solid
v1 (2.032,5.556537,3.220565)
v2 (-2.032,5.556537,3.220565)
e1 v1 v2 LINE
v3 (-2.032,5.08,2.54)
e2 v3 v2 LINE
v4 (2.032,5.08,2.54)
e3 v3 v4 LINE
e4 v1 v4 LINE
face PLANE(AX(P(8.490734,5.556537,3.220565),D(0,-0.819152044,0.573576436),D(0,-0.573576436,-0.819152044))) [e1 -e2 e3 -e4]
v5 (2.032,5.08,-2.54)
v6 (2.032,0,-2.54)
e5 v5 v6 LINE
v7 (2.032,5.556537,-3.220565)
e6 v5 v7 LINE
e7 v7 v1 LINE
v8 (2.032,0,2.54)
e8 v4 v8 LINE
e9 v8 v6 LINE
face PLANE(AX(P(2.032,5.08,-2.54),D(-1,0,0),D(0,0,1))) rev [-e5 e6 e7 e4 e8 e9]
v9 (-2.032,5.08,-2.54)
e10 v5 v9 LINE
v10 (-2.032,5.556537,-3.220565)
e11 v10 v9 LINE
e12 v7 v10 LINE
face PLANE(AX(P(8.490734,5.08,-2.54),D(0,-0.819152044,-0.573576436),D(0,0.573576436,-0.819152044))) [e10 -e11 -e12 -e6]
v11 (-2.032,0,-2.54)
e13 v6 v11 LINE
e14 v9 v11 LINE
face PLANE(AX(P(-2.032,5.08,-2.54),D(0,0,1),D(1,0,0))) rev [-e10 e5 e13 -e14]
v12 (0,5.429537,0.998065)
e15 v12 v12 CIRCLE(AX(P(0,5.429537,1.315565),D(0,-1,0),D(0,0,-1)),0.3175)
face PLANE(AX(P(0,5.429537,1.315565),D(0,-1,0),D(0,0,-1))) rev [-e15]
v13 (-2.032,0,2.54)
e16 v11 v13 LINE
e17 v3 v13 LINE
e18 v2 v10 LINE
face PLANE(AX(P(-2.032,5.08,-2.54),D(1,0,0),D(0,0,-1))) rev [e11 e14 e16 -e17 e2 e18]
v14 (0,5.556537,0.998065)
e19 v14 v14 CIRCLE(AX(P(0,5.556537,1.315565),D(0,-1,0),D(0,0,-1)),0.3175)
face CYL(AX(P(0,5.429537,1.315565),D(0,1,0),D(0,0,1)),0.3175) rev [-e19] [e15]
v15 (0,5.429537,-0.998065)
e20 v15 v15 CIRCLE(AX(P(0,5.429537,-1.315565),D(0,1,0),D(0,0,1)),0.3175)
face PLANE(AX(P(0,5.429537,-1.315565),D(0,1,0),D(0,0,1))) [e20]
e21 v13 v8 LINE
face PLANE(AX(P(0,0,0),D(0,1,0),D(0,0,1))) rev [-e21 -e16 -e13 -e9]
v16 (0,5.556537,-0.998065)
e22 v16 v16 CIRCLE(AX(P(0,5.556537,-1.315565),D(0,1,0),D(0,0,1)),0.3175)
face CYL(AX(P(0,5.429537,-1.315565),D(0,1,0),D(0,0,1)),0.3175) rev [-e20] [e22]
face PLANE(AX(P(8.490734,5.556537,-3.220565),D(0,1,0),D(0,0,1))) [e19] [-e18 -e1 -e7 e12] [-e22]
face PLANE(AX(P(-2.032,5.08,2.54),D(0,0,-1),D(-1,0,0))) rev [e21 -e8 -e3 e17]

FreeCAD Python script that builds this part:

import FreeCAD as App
import Part
import Sketcher
Q = App.Units.Quantity


def add_polygon(sketch, points):
    """Adds a closed chain of lines whose ends are joined by coincident constraints."""
    first, n = sketch.GeometryCount, len(points)
    for a, b in zip(points, points[1:] + points[:1]):
        sketch.addGeometry(Part.LineSegment(App.Vector(*a, 0), App.Vector(*b, 0)), False)
    for i in range(n):
        sketch.addConstraint(Sketcher.Constraint("Coincident", first + i, 2, first + (i + 1) % n, 1))

doc = App.newDocument("Part")
body = doc.addObject("PartDesign::Body", "Body")

sketch1 = body.newObject("Sketcher::SketchObject", "Sketch")
sketch1.AttachmentSupport = (doc.getObject("XZ_Plane"), [""])
sketch1.MapMode = "FlatFace"
add_polygon(sketch1, [(-2, -2.5), (-2, 2.5), (2, 2.5), (2, -2.5)])
sketch1.addConstraint(Sketcher.Constraint("Vertical", 0))
sketch1.addConstraint(Sketcher.Constraint("Horizontal", 1))
sketch1.addConstraint(Sketcher.Constraint("Vertical", 2))
sketch1.addConstraint(Sketcher.Constraint("Horizontal", 3))
sketch1.addConstraint(Sketcher.Constraint("Symmetric", 0, 2, 2, 2, -1, 1))
sketch1.addConstraint(Sketcher.Constraint("DistanceY", 0, 1, 0, 2, Q("0.2 in")))
sketch1.addConstraint(Sketcher.Constraint("DistanceX", 1, 1, 1, 2, Q("0.16 in")))
pad1 = body.newObject("PartDesign::Pad", "Pad")
pad1.Profile = sketch1
pad1.Length = Q("0.2 in")
pad1.Reversed = True

sketch2 = body.newObject("Sketcher::SketchObject", "Sketch001")
sketch2.AttachmentSupport = (doc.getObject("YZ_Plane"), [""])
sketch2.MapMode = "FlatFace"
sketch2.AttachmentOffset = App.Placement(App.Vector(0, 0, -0.08 * 25.4), App.Rotation())
add_polygon(sketch2, [(5.6, -3.2), (5.1, -2.5), (5.1, 2.5), (5.6, 3.2)])
sketch2.addConstraint(Sketcher.Constraint("Vertical", 1))
sketch2.addConstraint(Sketcher.Constraint("Vertical", 3))
sketch2.addConstraint(Sketcher.Constraint("Equal", 0, 2))
sketch2.addConstraint(Sketcher.Constraint("DistanceY", 1, 1, 1, 2, Q("0.2 in")))
sketch2.addConstraint(Sketcher.Constraint("Angle", 0, Q("125 deg")))
sketch2.addConstraint(Sketcher.Constraint("DistanceX", -1, 1, 0, 2, Q("0.2 in")))
sketch2.addConstraint(Sketcher.Constraint("DistanceY", 0, 2, -1, 1, Q("0.1 in")))
sketch2.addConstraint(Sketcher.Constraint("DistanceY", 3, 2, 3, 1, Q("6.44113 mm")))
pad2 = body.newObject("PartDesign::Pad", "Pad001")
pad2.Profile = sketch2
pad2.Length = Q("0.16 in")

sketch3 = body.newObject("Sketcher::SketchObject", "Sketch002")
sketch3.AttachmentSupport = (doc.getObject("XZ_Plane"), [""])
sketch3.MapMode = "FlatFace"
sketch3.AttachmentOffset = App.Placement(App.Vector(0, 0, -5.556537), App.Rotation())
sketch3.addGeometry(Part.Circle(App.Vector(0, -1.32, 0), App.Vector(0, 0, 1), 0.32), False)
sketch3.addGeometry(Part.Circle(App.Vector(0, 1.32, 0), App.Vector(0, 0, 1), 0.32), False)
sketch3.addConstraint(Sketcher.Constraint("Equal", 0, 1))
sketch3.addConstraint(Sketcher.Constraint("Symmetric", 0, 3, 1, 3, -1, 1))
sketch3.addConstraint(Sketcher.Constraint("PointOnObject", 0, 3, -2))
sketch3.addConstraint(Sketcher.Constraint("Diameter", 0, Q("0.025 in")))
sketch3.addConstraint(Sketcher.Constraint("DistanceY", 0, 3, 1, 3, Q("2.63113 mm")))
pocket1 = body.newObject("PartDesign::Pocket", "Pocket")
pocket1.Profile = sketch3
pocket1.Length = Q("0.005 in")
pocket1.Reversed = True

doc.recompute()
